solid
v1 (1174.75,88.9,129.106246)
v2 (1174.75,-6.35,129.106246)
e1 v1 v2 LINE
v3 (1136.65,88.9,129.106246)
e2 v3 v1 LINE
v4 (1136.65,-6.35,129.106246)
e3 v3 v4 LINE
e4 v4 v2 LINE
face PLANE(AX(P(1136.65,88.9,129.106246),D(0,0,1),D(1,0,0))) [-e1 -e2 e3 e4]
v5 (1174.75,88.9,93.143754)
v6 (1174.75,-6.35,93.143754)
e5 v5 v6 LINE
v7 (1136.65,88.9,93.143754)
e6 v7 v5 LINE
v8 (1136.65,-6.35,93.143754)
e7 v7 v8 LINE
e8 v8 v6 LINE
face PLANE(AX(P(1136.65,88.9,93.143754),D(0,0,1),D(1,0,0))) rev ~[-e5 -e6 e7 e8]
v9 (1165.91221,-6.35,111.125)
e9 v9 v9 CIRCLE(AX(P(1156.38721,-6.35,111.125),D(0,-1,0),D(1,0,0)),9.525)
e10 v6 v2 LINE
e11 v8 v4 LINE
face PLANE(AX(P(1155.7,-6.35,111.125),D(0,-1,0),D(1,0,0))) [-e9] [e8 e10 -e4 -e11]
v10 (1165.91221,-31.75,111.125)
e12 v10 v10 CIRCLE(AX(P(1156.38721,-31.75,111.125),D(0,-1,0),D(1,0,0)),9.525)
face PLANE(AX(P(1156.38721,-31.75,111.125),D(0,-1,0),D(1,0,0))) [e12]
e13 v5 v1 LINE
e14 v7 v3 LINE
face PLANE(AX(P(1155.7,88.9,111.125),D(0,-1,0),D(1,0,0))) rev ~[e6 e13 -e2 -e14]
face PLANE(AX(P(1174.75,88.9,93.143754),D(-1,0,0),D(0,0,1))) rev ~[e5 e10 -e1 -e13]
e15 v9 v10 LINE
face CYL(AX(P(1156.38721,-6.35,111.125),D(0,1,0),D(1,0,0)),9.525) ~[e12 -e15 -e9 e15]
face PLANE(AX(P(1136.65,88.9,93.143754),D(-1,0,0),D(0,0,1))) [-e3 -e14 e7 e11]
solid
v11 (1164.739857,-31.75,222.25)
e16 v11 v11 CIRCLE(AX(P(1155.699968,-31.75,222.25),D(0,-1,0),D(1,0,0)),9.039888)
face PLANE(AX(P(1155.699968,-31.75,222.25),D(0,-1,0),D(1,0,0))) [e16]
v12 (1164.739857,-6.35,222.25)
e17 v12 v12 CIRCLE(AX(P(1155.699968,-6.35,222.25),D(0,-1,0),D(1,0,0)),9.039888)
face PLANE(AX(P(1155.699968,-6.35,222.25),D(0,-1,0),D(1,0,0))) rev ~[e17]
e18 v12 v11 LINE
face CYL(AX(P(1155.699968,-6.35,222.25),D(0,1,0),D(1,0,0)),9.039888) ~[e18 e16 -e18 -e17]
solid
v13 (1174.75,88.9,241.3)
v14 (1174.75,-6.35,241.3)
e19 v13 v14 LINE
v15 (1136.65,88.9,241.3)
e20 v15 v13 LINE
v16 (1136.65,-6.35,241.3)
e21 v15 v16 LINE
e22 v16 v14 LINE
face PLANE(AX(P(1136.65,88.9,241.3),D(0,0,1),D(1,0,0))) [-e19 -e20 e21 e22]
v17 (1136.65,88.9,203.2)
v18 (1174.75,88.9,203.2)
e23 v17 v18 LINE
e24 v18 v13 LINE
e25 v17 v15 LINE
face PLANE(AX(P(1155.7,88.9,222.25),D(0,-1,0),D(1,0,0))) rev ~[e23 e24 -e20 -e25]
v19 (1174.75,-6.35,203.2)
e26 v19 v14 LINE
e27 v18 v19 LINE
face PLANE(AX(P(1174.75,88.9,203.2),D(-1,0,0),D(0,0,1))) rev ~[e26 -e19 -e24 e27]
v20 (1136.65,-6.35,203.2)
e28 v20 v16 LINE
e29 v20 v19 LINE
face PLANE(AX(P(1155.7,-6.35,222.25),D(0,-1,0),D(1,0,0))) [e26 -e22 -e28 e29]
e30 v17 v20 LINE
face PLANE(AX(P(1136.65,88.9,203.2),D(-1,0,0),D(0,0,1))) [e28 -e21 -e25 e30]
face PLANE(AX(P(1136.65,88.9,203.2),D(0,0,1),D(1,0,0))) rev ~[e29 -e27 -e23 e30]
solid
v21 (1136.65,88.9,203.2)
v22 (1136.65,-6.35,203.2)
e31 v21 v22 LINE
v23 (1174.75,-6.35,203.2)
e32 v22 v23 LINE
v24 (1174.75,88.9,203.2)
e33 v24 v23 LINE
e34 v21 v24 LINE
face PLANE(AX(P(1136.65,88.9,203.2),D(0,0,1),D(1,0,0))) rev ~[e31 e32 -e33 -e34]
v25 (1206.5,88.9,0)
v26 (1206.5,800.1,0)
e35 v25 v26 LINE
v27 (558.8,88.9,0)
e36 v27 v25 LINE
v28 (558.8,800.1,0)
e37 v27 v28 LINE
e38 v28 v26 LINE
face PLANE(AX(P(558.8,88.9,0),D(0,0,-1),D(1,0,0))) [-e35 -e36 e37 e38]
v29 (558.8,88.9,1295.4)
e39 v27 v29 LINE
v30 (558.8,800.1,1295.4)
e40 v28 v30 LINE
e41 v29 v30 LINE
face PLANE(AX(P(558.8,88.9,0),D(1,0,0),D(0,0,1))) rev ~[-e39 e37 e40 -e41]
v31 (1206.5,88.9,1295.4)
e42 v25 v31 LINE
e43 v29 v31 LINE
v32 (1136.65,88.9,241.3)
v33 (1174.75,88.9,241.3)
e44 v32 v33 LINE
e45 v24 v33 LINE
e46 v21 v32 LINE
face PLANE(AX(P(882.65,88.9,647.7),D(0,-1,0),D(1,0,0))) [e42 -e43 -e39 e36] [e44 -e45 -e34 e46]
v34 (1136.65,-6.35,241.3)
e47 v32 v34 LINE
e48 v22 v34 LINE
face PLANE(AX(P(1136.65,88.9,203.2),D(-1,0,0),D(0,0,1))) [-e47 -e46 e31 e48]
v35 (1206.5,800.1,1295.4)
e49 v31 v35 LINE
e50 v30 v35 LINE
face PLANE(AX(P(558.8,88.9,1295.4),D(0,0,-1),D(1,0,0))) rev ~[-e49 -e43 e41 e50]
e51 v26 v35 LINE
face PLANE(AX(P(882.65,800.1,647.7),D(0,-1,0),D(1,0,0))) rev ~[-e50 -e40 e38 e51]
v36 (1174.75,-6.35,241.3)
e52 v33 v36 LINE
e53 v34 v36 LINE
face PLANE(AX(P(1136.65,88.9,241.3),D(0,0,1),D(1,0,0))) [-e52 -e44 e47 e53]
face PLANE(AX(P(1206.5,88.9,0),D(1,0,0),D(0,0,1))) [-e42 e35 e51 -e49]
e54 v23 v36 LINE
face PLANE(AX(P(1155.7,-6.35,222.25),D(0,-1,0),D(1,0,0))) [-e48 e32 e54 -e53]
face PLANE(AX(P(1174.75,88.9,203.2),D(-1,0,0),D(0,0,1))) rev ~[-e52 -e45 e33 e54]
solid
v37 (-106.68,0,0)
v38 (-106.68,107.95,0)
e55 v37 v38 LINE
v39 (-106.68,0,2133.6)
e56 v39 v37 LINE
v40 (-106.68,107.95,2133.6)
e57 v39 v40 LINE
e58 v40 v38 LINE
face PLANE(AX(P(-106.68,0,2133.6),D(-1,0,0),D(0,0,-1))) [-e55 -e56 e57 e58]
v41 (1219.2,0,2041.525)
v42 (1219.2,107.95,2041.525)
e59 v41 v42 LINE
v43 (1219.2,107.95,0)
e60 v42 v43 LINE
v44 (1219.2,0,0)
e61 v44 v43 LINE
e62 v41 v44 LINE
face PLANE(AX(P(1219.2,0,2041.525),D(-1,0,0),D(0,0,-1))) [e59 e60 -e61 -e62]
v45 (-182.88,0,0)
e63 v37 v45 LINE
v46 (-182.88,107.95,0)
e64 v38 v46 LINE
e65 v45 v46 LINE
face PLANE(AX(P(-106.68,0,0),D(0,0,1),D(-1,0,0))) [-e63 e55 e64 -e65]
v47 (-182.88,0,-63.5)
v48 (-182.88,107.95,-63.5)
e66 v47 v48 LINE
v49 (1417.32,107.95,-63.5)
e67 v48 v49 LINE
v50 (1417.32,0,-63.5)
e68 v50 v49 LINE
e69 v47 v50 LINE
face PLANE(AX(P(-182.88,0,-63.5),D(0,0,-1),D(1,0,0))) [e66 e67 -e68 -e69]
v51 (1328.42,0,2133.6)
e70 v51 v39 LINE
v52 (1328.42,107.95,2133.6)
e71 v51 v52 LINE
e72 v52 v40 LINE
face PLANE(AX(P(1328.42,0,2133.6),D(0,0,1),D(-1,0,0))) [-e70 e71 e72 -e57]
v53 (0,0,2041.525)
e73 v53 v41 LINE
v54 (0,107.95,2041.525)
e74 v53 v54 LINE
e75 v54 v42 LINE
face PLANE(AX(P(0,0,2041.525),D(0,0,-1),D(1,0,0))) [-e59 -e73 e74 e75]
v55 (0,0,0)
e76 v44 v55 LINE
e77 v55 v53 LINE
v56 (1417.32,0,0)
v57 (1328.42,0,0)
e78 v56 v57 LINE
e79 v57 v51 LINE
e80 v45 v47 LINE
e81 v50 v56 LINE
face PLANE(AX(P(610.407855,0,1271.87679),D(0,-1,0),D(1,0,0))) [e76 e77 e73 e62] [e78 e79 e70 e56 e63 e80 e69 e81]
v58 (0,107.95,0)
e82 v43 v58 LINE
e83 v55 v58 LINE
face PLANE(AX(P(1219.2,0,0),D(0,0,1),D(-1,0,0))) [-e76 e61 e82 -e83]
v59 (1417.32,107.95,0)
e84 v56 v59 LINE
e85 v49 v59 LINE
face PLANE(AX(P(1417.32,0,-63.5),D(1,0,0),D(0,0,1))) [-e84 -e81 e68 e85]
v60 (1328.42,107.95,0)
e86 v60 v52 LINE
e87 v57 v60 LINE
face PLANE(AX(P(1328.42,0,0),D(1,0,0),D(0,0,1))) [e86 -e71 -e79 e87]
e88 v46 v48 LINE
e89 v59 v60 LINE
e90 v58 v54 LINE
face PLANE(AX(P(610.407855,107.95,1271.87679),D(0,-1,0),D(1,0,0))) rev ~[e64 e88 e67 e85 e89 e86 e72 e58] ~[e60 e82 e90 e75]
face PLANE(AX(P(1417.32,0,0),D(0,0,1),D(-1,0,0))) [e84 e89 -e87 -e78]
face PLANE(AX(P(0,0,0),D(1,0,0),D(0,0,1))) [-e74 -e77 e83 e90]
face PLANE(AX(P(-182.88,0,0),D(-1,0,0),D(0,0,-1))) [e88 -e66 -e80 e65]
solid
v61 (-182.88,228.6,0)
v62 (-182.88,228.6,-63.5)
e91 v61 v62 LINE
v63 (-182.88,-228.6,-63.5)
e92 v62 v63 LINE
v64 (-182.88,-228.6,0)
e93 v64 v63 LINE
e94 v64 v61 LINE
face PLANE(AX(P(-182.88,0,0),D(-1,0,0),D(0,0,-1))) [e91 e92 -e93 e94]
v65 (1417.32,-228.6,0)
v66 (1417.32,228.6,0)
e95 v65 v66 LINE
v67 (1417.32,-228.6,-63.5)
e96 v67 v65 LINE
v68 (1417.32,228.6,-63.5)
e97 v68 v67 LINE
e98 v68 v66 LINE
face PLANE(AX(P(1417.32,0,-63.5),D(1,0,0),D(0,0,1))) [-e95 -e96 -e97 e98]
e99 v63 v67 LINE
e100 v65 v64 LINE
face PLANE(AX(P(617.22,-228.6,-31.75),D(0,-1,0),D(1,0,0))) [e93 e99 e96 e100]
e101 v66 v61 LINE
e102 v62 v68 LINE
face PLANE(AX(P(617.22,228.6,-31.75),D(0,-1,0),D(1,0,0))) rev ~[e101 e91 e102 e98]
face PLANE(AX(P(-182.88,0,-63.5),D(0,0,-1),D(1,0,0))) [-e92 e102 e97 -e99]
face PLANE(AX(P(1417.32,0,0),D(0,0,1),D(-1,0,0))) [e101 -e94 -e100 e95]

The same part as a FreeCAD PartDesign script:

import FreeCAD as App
import Part
import Sketcher

V = App.Vector
Q = App.Units.Quantity

doc = App.newDocument("Part")
body = doc.addObject("PartDesign::Body", "Body")

# Sketch on XZ plane
sketch1 = body.newObject("Sketcher::SketchObject", "Sketch")
sketch1.AttachmentSupport = (doc.getObject("XZ_Plane"), [""])
sketch1.MapMode = "FlatFace"
sketch1.addGeometry([
    Part.LineSegment(V(-183, 0, 0), V(-183, -64, 0)),
    Part.LineSegment(V(-183, -64, 0), V(1417, -64, 0)),
    Part.LineSegment(V(1417, -64, 0), V(1417, 0, 0)),
    Part.LineSegment(V(1417, 0, 0), V(-183, 0, 0)),
], False)
sketch1.addConstraint([
    Sketcher.Constraint("Coincident", 0, 2, 1, 1),
    Sketcher.Constraint("Coincident", 1, 2, 2, 1),
    Sketcher.Constraint("Coincident", 2, 2, 3, 1),
    Sketcher.Constraint("Coincident", 3, 2, 0, 1),
    Sketcher.Constraint("Vertical", 0),
    Sketcher.Constraint("Horizontal", 1),
    Sketcher.Constraint("Vertical", 2),
    Sketcher.Constraint("Horizontal", 3),
    Sketcher.Constraint("PointOnObject", 2, 2, -1),
    Sketcher.Constraint("DistanceX", 1, 1, 1, 2, Q("63 in")),
    Sketcher.Constraint("DistanceY", 0, 2, 0, 1, Q("2.5 in")),
    Sketcher.Constraint("DistanceX", 0, 2, -1, 1, Q("7.2 in")),
])
pad1 = body.newObject("PartDesign::Pad", "Pad")
pad1.Profile = sketch1
pad1.Length = Q("18 in")
pad1.Midplane = True
body2 = doc.addObject("PartDesign::Body", "Body001")

# Sketch on XZ plane
sketch2 = body2.newObject("Sketcher::SketchObject", "Sketch001")
sketch2.AttachmentSupport = (doc.getObject("XZ_Plane001"), [""])
sketch2.MapMode = "FlatFace"
sketch2.addGeometry([
    Part.LineSegment(V(1328, 0, 0), V(1328, 2134, 0)),  # 0
    Part.LineSegment(V(1328, 2134, 0), V(-107, 2134, 0)),  # 1
    Part.LineSegment(V(-107, 2134, 0), V(-107, 0, 0)),  # 2
    Part.LineSegment(V(-107, 0, 0), V(-183, 0, 0)),  # 3
    Part.LineSegment(V(-183, 0, 0), V(-183, -64, 0)),  # 4
    Part.LineSegment(V(-183, -64, 0), V(1417, -64, 0)),  # 5
    Part.LineSegment(V(1417, -64, 0), V(1417, 0, 0)),  # 6
    Part.LineSegment(V(1417, 0, 0), V(1328, 0, 0)),  # 7
    Part.LineSegment(V(0, 0, 0), V(0, 2042, 0)),  # 8
    Part.LineSegment(V(0, 2042, 0), V(1219, 2042, 0)),  # 9
    Part.LineSegment(V(1219, 2042, 0), V(1219, 0, 0)),  # 10
    Part.LineSegment(V(1219, 0, 0), V(0, 0, 0)),  # 11
], False)
sketch2.addConstraint([
    Sketcher.Constraint("Coincident", 0, 2, 1, 1),
    Sketcher.Constraint("Coincident", 1, 2, 2, 1),
    Sketcher.Constraint("Coincident", 2, 2, 3, 1),
    Sketcher.Constraint("Coincident", 3, 2, 4, 1),
    Sketcher.Constraint("Coincident", 4, 2, 5, 1),
    Sketcher.Constraint("Coincident", 5, 2, 6, 1),
    Sketcher.Constraint("Coincident", 6, 2, 7, 1),
    Sketcher.Constraint("Coincident", 7, 2, 0, 1),
    Sketcher.Constraint("Coincident", 8, 2, 9, 1),
    Sketcher.Constraint("Coincident", 9, 2, 10, 1),
    Sketcher.Constraint("Coincident", 10, 2, 11, 1),
    Sketcher.Constraint("Coincident", 11, 2, 8, 1),
    Sketcher.Constraint("Vertical", 0),
    Sketcher.Constraint("Horizontal", 1),
    Sketcher.Constraint("Vertical", 2),
    Sketcher.Constraint("Horizontal", 3),
    Sketcher.Constraint("Vertical", 4),
    Sketcher.Constraint("Horizontal", 5),
    Sketcher.Constraint("Vertical", 6),
    Sketcher.Constraint("Horizontal", 7),
    Sketcher.Constraint("Vertical", 8),
    Sketcher.Constraint("Horizontal", 9),
    Sketcher.Constraint("Vertical", 10),
    Sketcher.Constraint("Horizontal", 11),
    Sketcher.Constraint("Coincident", 11, 2, -1, 1),
    Sketcher.Constraint("PointOnObject", 2, 2, -1),
    Sketcher.Constraint("PointOnObject", 6, 2, -1),
    Sketcher.Constraint("DistanceX", 3, 2, 3, 1, Q("3 in")),
    Sketcher.Constraint("DistanceX", 5, 1, 5, 2, Q("63 in")),
    Sketcher.Constraint("DistanceX", 9, 1, 9, 2, Q("48 in")),
    Sketcher.Constraint("DistanceY", 0, 1, 0, 2, Q("84 in")),
    Sketcher.Constraint("DistanceX", 1, 2, 1, 1, Q("56.5 in")),
    Sketcher.Constraint("DistanceY", 4, 2, 4, 1, Q("2.5 in")),
    Sketcher.Constraint("DistanceX", -1, 1, 0, 2, Q("52.3 in")),
    Sketcher.Constraint("DistanceY", 8, 1, 8, 2, Q("80.375 in")),
])
pad2 = body2.newObject("PartDesign::Pad", "Pad001")
pad2.Profile = sketch2
pad2.Length = Q("4.25 in")
pad2.Reversed = True
body3 = doc.addObject("PartDesign::Body", "Body002")

# Sketch on XZ plane
sketch3 = body3.newObject("Sketcher::SketchObject", "Sketch002")
sketch3.AttachmentSupport = (doc.getObject("XZ_Plane002"), [""])
sketch3.MapMode = "FlatFace"
sketch3.AttachmentOffset = App.Placement(V(0, 0, -3.5 * 25.4), App.Rotation())
sketch3.addGeometry([
    Part.LineSegment(V(559, 1295, 0), V(559, 0, 0)),
    Part.LineSegment(V(559, 0, 0), V(1206, 0, 0)),
    Part.LineSegment(V(1206, 0, 0), V(1206, 1295, 0)),
    Part.LineSegment(V(1206, 1295, 0), V(559, 1295, 0)),
], False)
sketch3.addConstraint([
    Sketcher.Constraint("Coincident", 0, 2, 1, 1),
    Sketcher.Constraint("Coincident", 1, 2, 2, 1),
    Sketcher.Constraint("Coincident", 2, 2, 3, 1),
    Sketcher.Constraint("Coincident", 3, 2, 0, 1),
    Sketcher.Constraint("Vertical", 0),
    Sketcher.Constraint("Horizontal", 1),
    Sketcher.Constraint("Vertical", 2),
    Sketcher.Constraint("Horizontal", 3),
    Sketcher.Constraint("PointOnObject", 0, 2, -1),
    Sketcher.Constraint("DistanceY", 0, 2, 0, 1, Q("51 in")),
    Sketcher.Constraint("DistanceX", 1, 1, 1, 2, Q("25.5 in")),
    Sketcher.Constraint("DistanceX", -1, 1, 0, 2, Q("22 in")),
])
pad3 = body3.newObject("PartDesign::Pad", "Pad002")
pad3.Profile = sketch3
pad3.Length = Q("28 in")
pad3.Reversed = True

# Sketch on XZ plane
sketch4 = body3.newObject("Sketcher::SketchObject", "Sketch003")
sketch4.AttachmentSupport = (doc.getObject("XZ_Plane002"), [""])
sketch4.MapMode = "FlatFace"
sketch4.AttachmentOffset = App.Placement(V(0, 0, -3.5 * 25.4), App.Rotation())
sketch4.addGeometry([
    Part.LineSegment(V(1137, 241, 0), V(1137, 203, 0)),
    Part.LineSegment(V(1137, 203, 0), V(1175, 203, 0)),
    Part.LineSegment(V(1175, 203, 0), V(1175, 241, 0)),
    Part.LineSegment(V(1175, 241, 0), V(1137, 241, 0)),
], False)
sketch4.addConstraint([
    Sketcher.Constraint("Coincident", 0, 2, 1, 1),
    Sketcher.Constraint("Coincident", 1, 2, 2, 1),
    Sketcher.Constraint("Coincident", 2, 2, 3, 1),
    Sketcher.Constraint("Coincident", 3, 2, 0, 1),
    Sketcher.Constraint("Vertical", 0),
    Sketcher.Constraint("Horizontal", 1),
    Sketcher.Constraint("Vertical", 2),
    Sketcher.Constraint("Horizontal", 3),
    Sketcher.Constraint("Equal", 3, 0),
    Sketcher.Constraint("DistanceX", 1, 1, 1, 2, Q("1.5 in")),
    Sketcher.Constraint("DistanceY", -1, 1, 0, 2, Q("8 in")),
    Sketcher.Constraint("DistanceX", -1, 1, 0, 2, Q("44.75 in")),
])
pad4 = body3.newObject("PartDesign::Pad", "Pad003")
pad4.Profile = sketch4
pad4.Length = Q("3.75 in")
body4 = doc.addObject("PartDesign::Body", "Body003")

# Sketch on XZ plane
sketch5 = body4.newObject("Sketcher::SketchObject", "Sketch004")
sketch5.AttachmentSupport = (doc.getObject("XZ_Plane003"), [""])
sketch5.MapMode = "FlatFace"
sketch5.AttachmentOffset = App.Placement(V(0, 0, -3.5 * 25.4), App.Rotation())
sketch5.addGeometry([
    Part.LineSegment(V(1137, 241, 0), V(1137, 203, 0)),
    Part.LineSegment(V(1137, 203, 0), V(1175, 203, 0)),
    Part.LineSegment(V(1175, 203, 0), V(1175, 241, 0)),
    Part.LineSegment(V(1175, 241, 0), V(1137, 241, 0)),
], False)
sketch5.addConstraint([
    Sketcher.Constraint("Coincident", 0, 2, 1, 1),
    Sketcher.Constraint("Coincident", 1, 2, 2, 1),
    Sketcher.Constraint("Coincident", 2, 2, 3, 1),
    Sketcher.Constraint("Coincident", 3, 2, 0, 1),
    Sketcher.Constraint("Vertical", 0),
    Sketcher.Constraint("Horizontal", 1),
    Sketcher.Constraint("Vertical", 2),
    Sketcher.Constraint("Horizontal", 3),
    Sketcher.Constraint("Equal", 3, 0),
    Sketcher.Constraint("DistanceX", 1, 1, 1, 2, Q("1.5 in")),
    Sketcher.Constraint("DistanceY", -1, 1, 0, 2, Q("8 in")),
    Sketcher.Constraint("DistanceX", -1, 1, 0, 2, Q("44.75 in")),
])
pad5 = body4.newObject("PartDesign::Pad", "Pad004")
pad5.Profile = sketch5
pad5.Length = Q("3.75 in")
body5 = doc.addObject("PartDesign::Body", "Body004")

# Sketch on XZ plane
sketch6 = body5.newObject("Sketcher::SketchObject", "Sketch005")
sketch6.AttachmentSupport = (doc.getObject("XZ_Plane004"), [""])
sketch6.MapMode = "FlatFace"
sketch6.AttachmentOffset = App.Placement(V(0, 0, -3.5 * 25.4), App.Rotation())
sketch6.addGeometry([
    Part.LineSegment(V(1137, 129, 0), V(1137, 93, 0)),
    Part.LineSegment(V(1137, 93, 0), V(1175, 93, 0)),
    Part.LineSegment(V(1175, 93, 0), V(1175, 129, 0)),
    Part.LineSegment(V(1175, 129, 0), V(1137, 129, 0)),
], False)
sketch6.addConstraint([
    Sketcher.Constraint("Coincident", 0, 2, 1, 1),
    Sketcher.Constraint("Coincident", 1, 2, 2, 1),
    Sketcher.Constraint("Coincident", 2, 2, 3, 1),
    Sketcher.Constraint("Coincident", 3, 2, 0, 1),
    Sketcher.Constraint("Vertical", 0),
    Sketcher.Constraint("Horizontal", 1),
    Sketcher.Constraint("Vertical", 2),
    Sketcher.Constraint("Horizontal", 3),
    Sketcher.Constraint("DistanceX", 1, 1, 1, 2, Q("1.5 in")),
    Sketcher.Constraint("DistanceX", -1, 1, 0, 2, Q("44.75 in")),
    Sketcher.Constraint("DistanceY", 0, 2, 0, 1, Q("35.962492 mm")),
    Sketcher.Constraint("DistanceY", -1, 1, 0, 2, Q("93.143754 mm")),
])
pad6 = body5.newObject("PartDesign::Pad", "Pad005")
pad6.Profile = sketch6
pad6.Length = Q("3.75 in")

# Sketch on XZ plane
sketch7 = body5.newObject("Sketcher::SketchObject", "Sketch006")
sketch7.AttachmentSupport = (doc.getObject("XZ_Plane004"), [""])
sketch7.MapMode = "FlatFace"
sketch7.AttachmentOffset = App.Placement(V(0, 0, 0.25 * 25.4), App.Rotation())
sketch7.addGeometry(Part.Circle(V(1156, 111, 0), V(0, 0, 1), 10), False)
sketch7.addConstraint([
    Sketcher.Constraint("Diameter", 0, Q("0.75 in")),
    Sketcher.Constraint("DistanceY", -1, 1, 0, 3, Q("4.375 in")),
    Sketcher.Constraint("DistanceX", -1, 1, 0, 3, Q("1156.38721 mm")),
])
pad7 = body5.newObject("PartDesign::Pad", "Pad006")
pad7.Profile = sketch7
pad7.Length = Q("1 in")
body6 = doc.addObject("PartDesign::Body", "Body005")

# Sketch on XZ plane
sketch8 = body6.newObject("Sketcher::SketchObject", "Sketch007")
sketch8.AttachmentSupport = (doc.getObject("XZ_Plane005"), [""])
sketch8.MapMode = "FlatFace"
sketch8.AttachmentOffset = App.Placement(V(0, 0, 0.25 * 25.4), App.Rotation())
sketch8.addGeometry(Part.Circle(V(1156, 222, 0), V(0, 0, 1), 9), False)
sketch8.addConstraint([
    Sketcher.Constraint("DistanceY", -1, 1, 0, 3, Q("8.75 in")),
    Sketcher.Constraint("Diameter", 0, Q("18.079777 mm")),
    Sketcher.Constraint("DistanceX", -1, 1, 0, 3, Q("1155.699968 mm")),
])
pad8 = body6.newObject("PartDesign::Pad", "Pad007")
pad8.Profile = sketch8
pad8.Length = Q("1 in")

doc.recompute()
